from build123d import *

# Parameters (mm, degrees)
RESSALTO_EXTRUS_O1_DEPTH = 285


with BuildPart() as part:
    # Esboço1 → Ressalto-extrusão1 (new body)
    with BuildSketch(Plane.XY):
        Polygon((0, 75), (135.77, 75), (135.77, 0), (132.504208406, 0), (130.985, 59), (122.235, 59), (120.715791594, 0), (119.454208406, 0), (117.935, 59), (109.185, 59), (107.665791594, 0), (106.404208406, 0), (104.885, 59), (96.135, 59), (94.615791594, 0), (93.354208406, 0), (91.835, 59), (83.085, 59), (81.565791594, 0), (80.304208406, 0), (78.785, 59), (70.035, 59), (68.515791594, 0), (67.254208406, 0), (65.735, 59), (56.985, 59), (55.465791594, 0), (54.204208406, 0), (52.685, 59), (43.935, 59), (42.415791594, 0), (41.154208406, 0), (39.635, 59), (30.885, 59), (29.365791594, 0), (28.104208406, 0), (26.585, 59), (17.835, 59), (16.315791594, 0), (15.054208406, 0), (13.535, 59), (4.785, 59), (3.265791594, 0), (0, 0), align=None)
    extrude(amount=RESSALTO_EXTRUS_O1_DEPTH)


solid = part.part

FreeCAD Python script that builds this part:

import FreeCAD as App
import Part
import Sketcher
from FreeCAD import Vector


def add_polygon(sketch, points):
    """Adds a closed chain of lines whose ends are joined by coincident constraints."""
    first, n = sketch.GeometryCount, len(points)
    for a, b in zip(points, points[1:] + points[:1]):
        sketch.addGeometry(Part.LineSegment(App.Vector(*a, 0), App.Vector(*b, 0)), False)
    for i in range(n):
        sketch.addConstraint(Sketcher.Constraint("Coincident", first + i, 2, first + (i + 1) % n, 1))

doc = App.newDocument("Part")
body = doc.addObject("PartDesign::Body", "Body")

sketch1 = body.newObject("Sketcher::SketchObject", "Sketch")
sketch1.AttachmentSupport = (doc.getObject("XY_Plane"), [""])
sketch1.MapMode = "FlatFace"
add_polygon(sketch1, [(135.8, 75), (0, 75), (0, 0), (3.3, 0), (4.8, 59), (13.5, 59), (15.1, 0), (16.3, 0), (17.8, 59), (26.6, 59), (28.1, 0), (29.4, 0), (30.9, 59), (39.6, 59), (41.2, 0), (42.4, 0), (43.9, 59), (52.7, 59), (54.2, 0), (55.5, 0), (57, 59), (65.7, 59), (67.3, 0), (68.5, 0), (70, 59), (78.8, 59), (80.3, 0), (81.6, 0), (83.1, 59), (91.8, 59), (93.4, 0), (94.6, 0), (96.1, 59), (104.9, 59), (106.4, 0), (107.7, 0), (109.2, 59), (117.9, 59), (119.5, 0), (120.7, 0), (122.2, 59), (131, 59), (132.5, 0), (135.8, 0)])
sketch1.addConstraint([
    Sketcher.Constraint("Horizontal", 0),
    Sketcher.Constraint("Vertical", 1),
    Sketcher.Constraint("Horizontal", 2),
    Sketcher.Constraint("Horizontal", 4),
    Sketcher.Constraint("Horizontal", 6),
    Sketcher.Constraint("Horizontal", 8),
    Sketcher.Constraint("Horizontal", 10),
    Sketcher.Constraint("Horizontal", 12),
    Sketcher.Constraint("Horizontal", 14),
    Sketcher.Constraint("Horizontal", 16),
    Sketcher.Constraint("Horizontal", 18),
    Sketcher.Constraint("Horizontal", 20),
    Sketcher.Constraint("Horizontal", 22),
    Sketcher.Constraint("Horizontal", 24),
    Sketcher.Constraint("Horizontal", 26),
    Sketcher.Constraint("Horizontal", 28),
    Sketcher.Constraint("Horizontal", 30),
    Sketcher.Constraint("Horizontal", 32),
    Sketcher.Constraint("Horizontal", 34),
    Sketcher.Constraint("Horizontal", 36),
    Sketcher.Constraint("Horizontal", 38),
    Sketcher.Constraint("Horizontal", 40),
    Sketcher.Constraint("Horizontal", 42),
    Sketcher.Constraint("Vertical", 43),
    Sketcher.Constraint("Coincident", 1, 2, -1, 1),
    Sketcher.Constraint("PointOnObject", 5, 2, -1),
    Sketcher.Constraint("PointOnObject", 9, 2, -1),
    Sketcher.Constraint("PointOnObject", 13, 2, -1),
    Sketcher.Constraint("PointOnObject", 17, 2, -1),
    Sketcher.Constraint("PointOnObject", 21, 2, -1),
    Sketcher.Constraint("PointOnObject", 25, 2, -1),
    Sketcher.Constraint("PointOnObject", 29, 2, -1),
    Sketcher.Constraint("PointOnObject", 33, 2, -1),
    Sketcher.Constraint("PointOnObject", 37, 2, -1),
    Sketcher.Constraint("PointOnObject", 41, 2, -1),
    Sketcher.Constraint("Parallel", 3, 7),
    Sketcher.Constraint("Parallel", 5, 9),
    Sketcher.Constraint("Parallel", 7, 11),
    Sketcher.Constraint("Parallel", 9, 13),
    Sketcher.Constraint("Parallel", 11, 15),
    Sketcher.Constraint("Parallel", 13, 17),
    Sketcher.Constraint("Parallel", 15, 19),
    Sketcher.Constraint("Parallel", 17, 21),
    Sketcher.Constraint("Parallel", 19, 23),
    Sketcher.Constraint("Parallel", 21, 25),
    Sketcher.Constraint("Parallel", 23, 27),
    Sketcher.Constraint("Parallel", 25, 29),
    Sketcher.Constraint("Parallel", 27, 31),
    Sketcher.Constraint("Parallel", 29, 33),
    Sketcher.Constraint("Parallel", 31, 35),
    Sketcher.Constraint("Parallel", 33, 37),
    Sketcher.Constraint("Parallel", 35, 39),
    Sketcher.Constraint("Parallel", 37, 41),
    Sketcher.Constraint("Horizontal", 4, 2, 7, 2),
    Sketcher.Constraint("Horizontal", 8, 2, 11, 2),
    Sketcher.Constraint("Horizontal", 12, 2, 15, 2),
    Sketcher.Constraint("Horizontal", 16, 2, 19, 2),
    Sketcher.Constraint("Horizontal", 20, 2, 23, 2),
    Sketcher.Constraint("Horizontal", 24, 2, 27, 2),
    Sketcher.Constraint("Horizontal", 28, 2, 31, 2),
    Sketcher.Constraint("Horizontal", 32, 2, 35, 2),
    Sketcher.Constraint("Horizontal", 36, 2, 39, 2),
    Sketcher.Constraint("Equal", 4, 8),
    Sketcher.Constraint("Equal", 6, 10),
    Sketcher.Constraint("Equal", 8, 12),
    Sketcher.Constraint("Equal", 10, 14),
    Sketcher.Constraint("Equal", 12, 16),
    Sketcher.Constraint("Equal", 14, 18),
    Sketcher.Constraint("Equal", 16, 20),
    Sketcher.Constraint("Equal", 18, 22),
    Sketcher.Constraint("Equal", 20, 24),
    Sketcher.Constraint("Equal", 22, 26),
    Sketcher.Constraint("Equal", 24, 28),
    Sketcher.Constraint("Equal", 26, 30),
    Sketcher.Constraint("Equal", 28, 32),
    Sketcher.Constraint("Equal", 30, 34),
    Sketcher.Constraint("Equal", 32, 36),
    Sketcher.Constraint("Equal", 34, 38),
    Sketcher.Constraint("Equal", 36, 40),
    Sketcher.Constraint("Equal", 2, 42),
    Sketcher.Constraint("Equal", 3, 5),
    Sketcher.Constraint("DistanceY", 1, 2, 1, 1, 75.0),
    Sketcher.Constraint("DistanceY", -1, 1, 3, 2, 59.0),
    Sketcher.Constraint("DistanceX", 0, 2, 0, 1, 135.77),
    Sketcher.Constraint("DistanceX", 4, 1, 4, 2, 8.75),
    Sketcher.Constraint("DistanceX", 4, 2, 7, 2, 4.3),
    Sketcher.Constraint("DistanceX", 2, 1, 2, 2, 3.265792),
])
pad1 = body.newObject("PartDesign::Pad", "Pad")
pad1.Profile = sketch1
pad1.Length = 285

doc.recompute()
